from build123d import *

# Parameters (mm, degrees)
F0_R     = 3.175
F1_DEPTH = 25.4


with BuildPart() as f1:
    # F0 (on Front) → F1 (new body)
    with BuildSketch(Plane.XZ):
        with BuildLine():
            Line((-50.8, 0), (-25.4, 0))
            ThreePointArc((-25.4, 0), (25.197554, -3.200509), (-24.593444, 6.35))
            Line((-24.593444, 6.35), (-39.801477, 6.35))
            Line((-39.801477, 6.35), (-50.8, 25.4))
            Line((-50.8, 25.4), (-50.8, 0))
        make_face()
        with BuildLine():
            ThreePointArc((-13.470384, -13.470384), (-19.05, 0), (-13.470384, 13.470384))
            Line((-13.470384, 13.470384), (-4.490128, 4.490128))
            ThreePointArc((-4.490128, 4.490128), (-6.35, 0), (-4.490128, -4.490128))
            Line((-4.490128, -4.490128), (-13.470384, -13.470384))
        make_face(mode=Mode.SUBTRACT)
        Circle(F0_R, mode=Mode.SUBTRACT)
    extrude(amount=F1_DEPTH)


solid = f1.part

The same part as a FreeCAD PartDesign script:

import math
import FreeCAD as App
import Part
import Sketcher

V = App.Vector
Q = App.Units.Quantity

doc = App.newDocument("Part")
params = doc.addObject("Spreadsheet::Sheet", "Params")
for row, (alias, value) in enumerate([
    ("sketch1_radius", "1 in"),
    ("sketch1_diameter", "0.25 in"),
    ("sketch1_width", "1 in"),
    ("sketch1_radius2", "0.75 in"),
    ("sketch1_radius3", "0.25 in"),
    ("pad1_length", "1 in"),
], start=1):
    params.set(f"A{row}", alias)
    params.set(f"B{row}", "=" + value)
    params.setAlias(f"B{row}", alias)

body = doc.addObject("PartDesign::Body", "Body")

# Sketch on XZ plane
sketch1 = body.newObject("Sketcher::SketchObject", "Sketch")
sketch1.AttachmentSupport = (doc.getObject("XZ_Plane"), [""])
sketch1.MapMode = "FlatFace"
sketch1.addGeometry(Part.LineSegment(V(-50.8, 0, 0), V(-25.4, 0, 0)), False)
sketch1.addGeometry(Part.ArcOfCircle(Part.Circle(V(0, 0, 0), V(0, 0, 1), 25.4), math.radians(180), math.radians(526)), False)
sketch1.addGeometry(Part.LineSegment(V(-24.6, 6.3, 0), V(-39.8, 6.3, 0)), False)
sketch1.addGeometry(Part.LineSegment(V(-39.8, 6.3, 0), V(-50.8, 25.4, 0)), False)
sketch1.addGeometry(Part.LineSegment(V(-50.8, 25.4, 0), V(-50.8, 0, 0)), False)
sketch1.addGeometry(Part.LineSegment(V(-4.5, -4.5, 0), V(-13.5, -13.5, 0)), False)
sketch1.addGeometry(Part.ArcOfCircle(Part.Circle(V(0, 0, 0), V(0, 0, 1), 19), math.radians(135), math.radians(225)), False)
sketch1.addGeometry(Part.LineSegment(V(-13.5, 13.5, 0), V(-4.5, 4.5, 0)), False)
sketch1.addGeometry(Part.ArcOfCircle(Part.Circle(V(0, 0, 0), V(0, 0, 1), 6.3), math.radians(135), math.radians(225)), False)
sketch1.addGeometry(Part.Circle(V(0, 0, 0), V(0, 0, 1), 3.2), False)
sketch1.addConstraint(Sketcher.Constraint("Coincident", 0, 2, 1, 1))
sketch1.addConstraint(Sketcher.Constraint("Coincident", 1, 2, 2, 1))
sketch1.addConstraint(Sketcher.Constraint("Coincident", 2, 2, 3, 1))
sketch1.addConstraint(Sketcher.Constraint("Coincident", 3, 2, 4, 1))
sketch1.addConstraint(Sketcher.Constraint("Coincident", 4, 2, 0, 1))
sketch1.addConstraint(Sketcher.Constraint("Coincident", 5, 2, 6, 2))
sketch1.addConstraint(Sketcher.Constraint("Coincident", 6, 1, 7, 1))
sketch1.addConstraint(Sketcher.Constraint("Coincident", 7, 2, 8, 1))
sketch1.addConstraint(Sketcher.Constraint("Coincident", 8, 2, 5, 1))
sketch1.addConstraint(Sketcher.Constraint("Horizontal", 0))
sketch1.addConstraint(Sketcher.Constraint("Horizontal", 2))
sketch1.addConstraint(Sketcher.Constraint("Vertical", 4))
sketch1.addConstraint(Sketcher.Constraint("Coincident", 1, 3, -1, 1))
sketch1.addConstraint(Sketcher.Constraint("Coincident", 6, 3, -1, 1))
sketch1.addConstraint(Sketcher.Constraint("Coincident", 8, 3, -1, 1))
sketch1.addConstraint(Sketcher.Constraint("Coincident", 9, 3, -1, 1))
sketch1.addConstraint(Sketcher.Constraint("PointOnObject", 0, 2, -1))
sketch1.addConstraint(Sketcher.Constraint("Perpendicular", 5, 7))
sketch1.addConstraint(Sketcher.Constraint("Vertical", 5, 2, 6, 1))
sketch1.addConstraint(Sketcher.Constraint("Vertical", 7, 2, 8, 2))
sketch1.addConstraint(Sketcher.Constraint("Equal", 0, 4))
sketch1.addConstraint(Sketcher.Constraint("Radius", 1, Q("1 in")))
sketch1.addConstraint(Sketcher.Constraint("Diameter", 9, Q("0.25 in")))
sketch1.addConstraint(Sketcher.Constraint("DistanceX", 0, 1, 0, 2, Q("1 in")))
sketch1.addConstraint(Sketcher.Constraint("Radius", 6, Q("0.75 in")))
sketch1.addConstraint(Sketcher.Constraint("Radius", 8, Q("0.25 in")))
sketch1.addConstraint(Sketcher.Constraint("Angle", 3, Q("120.000001 deg")))
sketch1.addConstraint(Sketcher.Constraint("DistanceY", -1, 1, 1, 2, Q("0.25 in")))
sketch1.addConstraint(Sketcher.Constraint("DistanceX", 7, 2, -1, 1, 4.490128))
sketch1.setExpression("Constraints[21]", "Params.sketch1_radius")
sketch1.setExpression("Constraints[22]", "Params.sketch1_diameter")
sketch1.setExpression("Constraints[23]", "Params.sketch1_width")
sketch1.setExpression("Constraints[24]", "Params.sketch1_radius2")
sketch1.setExpression("Constraints[25]", "Params.sketch1_radius3")
pad1 = body.newObject("PartDesign::Pad", "Pad")
pad1.Profile = sketch1
pad1.setExpression("Length", "Params.pad1_length")

doc.recompute()
